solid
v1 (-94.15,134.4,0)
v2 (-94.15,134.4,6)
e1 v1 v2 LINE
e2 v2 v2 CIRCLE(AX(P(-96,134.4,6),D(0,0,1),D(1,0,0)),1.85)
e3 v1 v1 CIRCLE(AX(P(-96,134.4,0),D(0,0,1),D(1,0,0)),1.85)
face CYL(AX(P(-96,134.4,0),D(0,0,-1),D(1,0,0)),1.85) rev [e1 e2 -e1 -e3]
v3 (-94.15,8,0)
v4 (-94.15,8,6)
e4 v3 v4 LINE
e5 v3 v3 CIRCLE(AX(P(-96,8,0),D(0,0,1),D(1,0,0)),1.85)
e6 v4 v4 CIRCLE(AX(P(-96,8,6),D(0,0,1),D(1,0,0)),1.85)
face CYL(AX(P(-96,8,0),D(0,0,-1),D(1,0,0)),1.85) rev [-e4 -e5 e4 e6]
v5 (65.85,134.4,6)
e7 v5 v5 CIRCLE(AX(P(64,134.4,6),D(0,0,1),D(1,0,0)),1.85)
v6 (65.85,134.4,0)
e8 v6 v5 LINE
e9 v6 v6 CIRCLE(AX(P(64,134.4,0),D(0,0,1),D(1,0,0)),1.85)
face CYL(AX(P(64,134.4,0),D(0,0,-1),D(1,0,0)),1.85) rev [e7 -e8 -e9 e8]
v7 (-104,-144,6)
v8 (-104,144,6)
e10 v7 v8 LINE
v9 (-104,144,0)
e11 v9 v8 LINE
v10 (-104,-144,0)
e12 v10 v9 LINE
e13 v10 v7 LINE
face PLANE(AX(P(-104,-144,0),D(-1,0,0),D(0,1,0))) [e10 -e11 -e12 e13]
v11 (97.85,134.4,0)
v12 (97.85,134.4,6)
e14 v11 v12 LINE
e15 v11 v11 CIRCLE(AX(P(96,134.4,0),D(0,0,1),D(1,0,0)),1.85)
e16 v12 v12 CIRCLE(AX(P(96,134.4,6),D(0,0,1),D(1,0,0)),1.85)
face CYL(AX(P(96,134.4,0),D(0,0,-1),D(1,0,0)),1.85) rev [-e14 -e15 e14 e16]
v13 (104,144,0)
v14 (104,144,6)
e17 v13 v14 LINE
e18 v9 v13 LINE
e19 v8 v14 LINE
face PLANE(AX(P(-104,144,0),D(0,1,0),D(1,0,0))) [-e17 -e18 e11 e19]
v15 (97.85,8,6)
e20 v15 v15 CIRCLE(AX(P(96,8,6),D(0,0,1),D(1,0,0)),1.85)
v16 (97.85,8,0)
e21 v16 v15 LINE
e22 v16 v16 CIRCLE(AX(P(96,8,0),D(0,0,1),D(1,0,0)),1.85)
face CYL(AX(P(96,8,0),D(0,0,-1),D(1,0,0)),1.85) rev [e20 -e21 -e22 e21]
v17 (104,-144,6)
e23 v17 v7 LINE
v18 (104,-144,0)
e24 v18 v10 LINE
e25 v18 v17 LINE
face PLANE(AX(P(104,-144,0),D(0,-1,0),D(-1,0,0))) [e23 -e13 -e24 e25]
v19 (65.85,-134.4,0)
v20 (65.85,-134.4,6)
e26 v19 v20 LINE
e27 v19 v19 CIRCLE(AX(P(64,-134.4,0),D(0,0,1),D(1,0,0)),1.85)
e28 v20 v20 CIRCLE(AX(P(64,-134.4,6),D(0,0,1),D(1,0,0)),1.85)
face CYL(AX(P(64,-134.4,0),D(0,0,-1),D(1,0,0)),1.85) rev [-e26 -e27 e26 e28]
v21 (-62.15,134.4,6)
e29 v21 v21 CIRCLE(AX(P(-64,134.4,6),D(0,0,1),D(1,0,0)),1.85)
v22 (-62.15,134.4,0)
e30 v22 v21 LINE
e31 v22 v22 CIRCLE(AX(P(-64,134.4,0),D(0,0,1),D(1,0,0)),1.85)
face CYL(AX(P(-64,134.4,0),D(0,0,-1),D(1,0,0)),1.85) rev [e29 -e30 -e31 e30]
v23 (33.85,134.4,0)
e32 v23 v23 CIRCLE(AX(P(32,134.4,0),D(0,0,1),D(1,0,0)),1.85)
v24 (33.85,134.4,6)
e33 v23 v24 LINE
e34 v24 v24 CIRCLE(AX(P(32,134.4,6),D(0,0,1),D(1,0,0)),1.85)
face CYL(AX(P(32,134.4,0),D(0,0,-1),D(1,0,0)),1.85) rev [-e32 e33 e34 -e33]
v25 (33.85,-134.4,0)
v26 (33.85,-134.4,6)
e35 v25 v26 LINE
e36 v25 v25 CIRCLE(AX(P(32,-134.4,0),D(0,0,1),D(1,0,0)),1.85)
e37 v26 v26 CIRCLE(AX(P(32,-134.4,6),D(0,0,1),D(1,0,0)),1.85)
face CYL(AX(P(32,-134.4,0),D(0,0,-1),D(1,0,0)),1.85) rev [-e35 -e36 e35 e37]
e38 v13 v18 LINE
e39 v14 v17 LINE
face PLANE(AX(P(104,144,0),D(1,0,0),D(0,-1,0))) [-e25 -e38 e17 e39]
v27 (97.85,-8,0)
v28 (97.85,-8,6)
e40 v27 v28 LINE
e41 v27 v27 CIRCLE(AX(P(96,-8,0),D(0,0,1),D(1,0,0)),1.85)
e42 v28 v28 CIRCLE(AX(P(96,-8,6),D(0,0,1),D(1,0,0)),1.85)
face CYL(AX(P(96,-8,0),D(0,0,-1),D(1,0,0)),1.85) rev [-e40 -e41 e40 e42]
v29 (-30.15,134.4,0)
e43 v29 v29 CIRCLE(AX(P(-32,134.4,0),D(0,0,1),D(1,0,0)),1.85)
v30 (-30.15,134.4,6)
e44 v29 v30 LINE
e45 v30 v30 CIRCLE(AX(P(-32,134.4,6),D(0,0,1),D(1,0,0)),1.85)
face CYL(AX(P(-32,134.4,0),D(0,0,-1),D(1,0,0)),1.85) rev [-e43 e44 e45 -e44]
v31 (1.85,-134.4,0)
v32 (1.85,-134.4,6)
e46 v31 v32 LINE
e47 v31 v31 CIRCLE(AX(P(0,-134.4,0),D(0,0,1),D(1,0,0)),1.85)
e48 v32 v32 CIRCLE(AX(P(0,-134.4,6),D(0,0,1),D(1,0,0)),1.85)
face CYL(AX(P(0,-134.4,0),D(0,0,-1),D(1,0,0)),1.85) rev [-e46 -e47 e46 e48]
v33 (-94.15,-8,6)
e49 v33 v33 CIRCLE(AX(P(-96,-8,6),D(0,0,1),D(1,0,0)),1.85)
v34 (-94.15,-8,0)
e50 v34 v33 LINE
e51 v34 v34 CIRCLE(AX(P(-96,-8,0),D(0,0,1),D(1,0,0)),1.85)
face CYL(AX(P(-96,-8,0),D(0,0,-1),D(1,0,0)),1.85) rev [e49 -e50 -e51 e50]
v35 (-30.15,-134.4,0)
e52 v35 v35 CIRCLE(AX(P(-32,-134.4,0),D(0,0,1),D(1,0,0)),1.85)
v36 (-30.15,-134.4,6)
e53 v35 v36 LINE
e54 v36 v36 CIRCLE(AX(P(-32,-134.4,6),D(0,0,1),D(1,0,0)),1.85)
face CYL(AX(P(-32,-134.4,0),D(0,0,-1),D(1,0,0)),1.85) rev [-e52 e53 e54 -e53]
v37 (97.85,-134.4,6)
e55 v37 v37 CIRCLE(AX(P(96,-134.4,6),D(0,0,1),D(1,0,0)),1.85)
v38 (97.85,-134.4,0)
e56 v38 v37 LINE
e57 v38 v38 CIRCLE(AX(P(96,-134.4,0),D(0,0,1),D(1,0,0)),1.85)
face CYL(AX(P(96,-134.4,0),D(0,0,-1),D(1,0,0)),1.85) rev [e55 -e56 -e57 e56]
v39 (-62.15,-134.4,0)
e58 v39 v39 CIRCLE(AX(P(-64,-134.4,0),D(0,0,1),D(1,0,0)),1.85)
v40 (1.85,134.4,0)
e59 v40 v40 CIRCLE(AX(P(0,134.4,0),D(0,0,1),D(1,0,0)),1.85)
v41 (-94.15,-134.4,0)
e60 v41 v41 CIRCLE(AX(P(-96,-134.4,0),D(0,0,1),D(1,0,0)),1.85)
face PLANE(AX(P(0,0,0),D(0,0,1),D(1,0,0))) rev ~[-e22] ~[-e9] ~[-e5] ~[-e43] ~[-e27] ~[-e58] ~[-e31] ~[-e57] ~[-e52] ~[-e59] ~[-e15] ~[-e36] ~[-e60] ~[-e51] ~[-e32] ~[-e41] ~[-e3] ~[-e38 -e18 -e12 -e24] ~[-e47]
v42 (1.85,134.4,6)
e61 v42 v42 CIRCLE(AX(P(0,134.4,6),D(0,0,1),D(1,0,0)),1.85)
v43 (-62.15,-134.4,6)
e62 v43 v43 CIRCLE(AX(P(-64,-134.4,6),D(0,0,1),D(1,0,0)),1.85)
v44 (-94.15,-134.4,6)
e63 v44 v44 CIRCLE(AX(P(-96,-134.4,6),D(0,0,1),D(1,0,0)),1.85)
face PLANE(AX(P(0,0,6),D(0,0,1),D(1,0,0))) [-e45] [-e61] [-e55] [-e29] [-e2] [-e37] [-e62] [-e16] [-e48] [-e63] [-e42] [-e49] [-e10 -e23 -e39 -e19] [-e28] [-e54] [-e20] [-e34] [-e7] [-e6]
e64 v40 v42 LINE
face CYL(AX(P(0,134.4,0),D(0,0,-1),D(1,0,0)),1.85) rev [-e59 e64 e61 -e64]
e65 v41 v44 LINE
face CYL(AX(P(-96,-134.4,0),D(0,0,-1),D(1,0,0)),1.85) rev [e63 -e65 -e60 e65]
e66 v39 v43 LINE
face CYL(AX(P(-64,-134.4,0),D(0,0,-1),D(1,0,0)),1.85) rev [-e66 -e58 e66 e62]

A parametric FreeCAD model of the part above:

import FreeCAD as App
import Part
import Sketcher
from FreeCAD import Vector

doc = App.newDocument("Part")
body = doc.addObject("PartDesign::Body", "Body")

# Sketch on XY plane
sketch1 = doc.addObject("Sketcher::SketchObject", "Sketch")
body.addObject(sketch1)
sketch1.AttachmentSupport = (doc.XY_Plane, [""])
sketch1.MapMode = "FlatFace"
sketch1.addGeometry([
    Part.LineSegment(Vector(-104, -144, 0), Vector(104, -144, 0)),  # 0
    Part.LineSegment(Vector(104, -144, 0), Vector(104, 144, 0)),  # 1
    Part.LineSegment(Vector(104, 144, 0), Vector(-104, 144, 0)),  # 2
    Part.LineSegment(Vector(-104, 144, 0), Vector(-104, -144, 0)),  # 3
    Part.Circle(Vector(-96, -134.4, 0), Vector(0, 0, 1), 1.9),  # 4
    Part.Circle(Vector(-64, -134.4, 0), Vector(0, 0, 1), 1.9),  # 5
    Part.Circle(Vector(-32, -134.4, 0), Vector(0, 0, 1), 1.9),  # 6
    Part.Circle(Vector(-96, -8, 0), Vector(0, 0, 1), 1.9),  # 7
    Part.Circle(Vector(0, -134.4, 0), Vector(0, 0, 1), 1.9),  # 8
    Part.Circle(Vector(32, -134.4, 0), Vector(0, 0, 1), 1.9),  # 9
    Part.Circle(Vector(64, -134.4, 0), Vector(0, 0, 1), 1.9),  # 10
    Part.Circle(Vector(96, -134.4, 0), Vector(0, 0, 1), 1.9),  # 11
    Part.Circle(Vector(96, -8, 0), Vector(0, 0, 1), 1.9),  # 12
    Part.Circle(Vector(-96, 8, 0), Vector(0, 0, 1), 1.9),  # 13
    Part.Circle(Vector(-96, 134.4, 0), Vector(0, 0, 1), 1.9),  # 14
    Part.Circle(Vector(-64, 134.4, 0), Vector(0, 0, 1), 1.9),  # 15
    Part.Circle(Vector(-32, 134.4, 0), Vector(0, 0, 1), 1.9),  # 16
    Part.Circle(Vector(96, 8, 0), Vector(0, 0, 1), 1.9),  # 17
    Part.Circle(Vector(0, 134.4, 0), Vector(0, 0, 1), 1.9),  # 18
    Part.Circle(Vector(32, 134.4, 0), Vector(0, 0, 1), 1.9),  # 19
    Part.Circle(Vector(64, 134.4, 0), Vector(0, 0, 1), 1.9),  # 20
    Part.Circle(Vector(96, 134.4, 0), Vector(0, 0, 1), 1.9),  # 21
], False)
sketch1.addConstraint([
    Sketcher.Constraint("Coincident", 0, 2, 1, 1),
    Sketcher.Constraint("Coincident", 1, 2, 2, 1),
    Sketcher.Constraint("Coincident", 2, 2, 3, 1),
    Sketcher.Constraint("Coincident", 3, 2, 0, 1),
    Sketcher.Constraint("Horizontal", 0),
    Sketcher.Constraint("Vertical", 1),
    Sketcher.Constraint("Horizontal", 2),
    Sketcher.Constraint("Vertical", 3),
    Sketcher.Constraint("Equal", 4, 5),
    Sketcher.Constraint("Equal", 5, 6),
    Sketcher.Constraint("Equal", 6, 7),
    Sketcher.Constraint("Equal", 7, 8),
    Sketcher.Constraint("Equal", 8, 9),
    Sketcher.Constraint("Equal", 9, 10),
    Sketcher.Constraint("Equal", 10, 11),
    Sketcher.Constraint("Equal", 11, 12),
    Sketcher.Constraint("Equal", 12, 13),
    Sketcher.Constraint("Equal", 13, 14),
    Sketcher.Constraint("Equal", 14, 15),
    Sketcher.Constraint("Equal", 15, 16),
    Sketcher.Constraint("Equal", 16, 17),
    Sketcher.Constraint("Equal", 17, 18),
    Sketcher.Constraint("Equal", 18, 19),
    Sketcher.Constraint("Equal", 19, 20),
    Sketcher.Constraint("Equal", 20, 21),
    Sketcher.Constraint("Symmetric", 12, 3, 13, 3, -1, 1),
    Sketcher.Constraint("Symmetric", 11, 3, 14, 3, -1, 1),
    Sketcher.Constraint("Symmetric", 10, 3, 15, 3, -1, 1),
    Sketcher.Constraint("Symmetric", 9, 3, 16, 3, -1, 1),
    Sketcher.Constraint("Symmetric", 7, 3, 17, 3, -1, 1),
    Sketcher.Constraint("Symmetric", 8, 3, 18, 3, -1, 1),
    Sketcher.Constraint("Symmetric", 6, 3, 19, 3, -1, 1),
    Sketcher.Constraint("Symmetric", 5, 3, 20, 3, -1, 1),
    Sketcher.Constraint("Symmetric", 4, 3, 21, 3, -1, 1),
    Sketcher.Constraint("Symmetric", 0, 2, 2, 2, -1, 1),
    Sketcher.Constraint("Symmetric", 6, 3, 9, 3, -2),
    Sketcher.Constraint("Symmetric", 5, 3, 10, 3, -2),
    Sketcher.Constraint("Symmetric", 4, 3, 11, 3, -2),
    Sketcher.Constraint("Symmetric", 7, 3, 12, 3, -2),
    Sketcher.Constraint("PointOnObject", 8, 3, -2),
    Sketcher.Constraint("Horizontal", 4, 3, 5, 3),
    Sketcher.Constraint("Horizontal", 5, 3, 6, 3),
    Sketcher.Constraint("Horizontal", 6, 3, 8, 3),
    Sketcher.Constraint("Vertical", 4, 3, 7, 3),
    Sketcher.Constraint("DistanceX", 0, 1, 0, 2, 208.0),
    Sketcher.Constraint("DistanceY", 1, 1, 1, 2, 288.0),
    Sketcher.Constraint("Diameter", 4, 3.7),
    Sketcher.Constraint("DistanceX", 4, 3, -1, 1, 96.0),
    Sketcher.Constraint("DistanceX", 5, 3, -1, 1, 64.0),
    Sketcher.Constraint("DistanceX", 6, 3, -1, 1, 32.0),
    Sketcher.Constraint("DistanceY", 7, 3, -1, 1, 8.0),
    Sketcher.Constraint("DistanceY", 4, 3, -1, 1, 134.4),
])
pad1 = doc.addObject("PartDesign::Pad", "Pad")
body.addObject(pad1)
pad1.Profile = sketch1
pad1.Length = 6

doc.recompute()
